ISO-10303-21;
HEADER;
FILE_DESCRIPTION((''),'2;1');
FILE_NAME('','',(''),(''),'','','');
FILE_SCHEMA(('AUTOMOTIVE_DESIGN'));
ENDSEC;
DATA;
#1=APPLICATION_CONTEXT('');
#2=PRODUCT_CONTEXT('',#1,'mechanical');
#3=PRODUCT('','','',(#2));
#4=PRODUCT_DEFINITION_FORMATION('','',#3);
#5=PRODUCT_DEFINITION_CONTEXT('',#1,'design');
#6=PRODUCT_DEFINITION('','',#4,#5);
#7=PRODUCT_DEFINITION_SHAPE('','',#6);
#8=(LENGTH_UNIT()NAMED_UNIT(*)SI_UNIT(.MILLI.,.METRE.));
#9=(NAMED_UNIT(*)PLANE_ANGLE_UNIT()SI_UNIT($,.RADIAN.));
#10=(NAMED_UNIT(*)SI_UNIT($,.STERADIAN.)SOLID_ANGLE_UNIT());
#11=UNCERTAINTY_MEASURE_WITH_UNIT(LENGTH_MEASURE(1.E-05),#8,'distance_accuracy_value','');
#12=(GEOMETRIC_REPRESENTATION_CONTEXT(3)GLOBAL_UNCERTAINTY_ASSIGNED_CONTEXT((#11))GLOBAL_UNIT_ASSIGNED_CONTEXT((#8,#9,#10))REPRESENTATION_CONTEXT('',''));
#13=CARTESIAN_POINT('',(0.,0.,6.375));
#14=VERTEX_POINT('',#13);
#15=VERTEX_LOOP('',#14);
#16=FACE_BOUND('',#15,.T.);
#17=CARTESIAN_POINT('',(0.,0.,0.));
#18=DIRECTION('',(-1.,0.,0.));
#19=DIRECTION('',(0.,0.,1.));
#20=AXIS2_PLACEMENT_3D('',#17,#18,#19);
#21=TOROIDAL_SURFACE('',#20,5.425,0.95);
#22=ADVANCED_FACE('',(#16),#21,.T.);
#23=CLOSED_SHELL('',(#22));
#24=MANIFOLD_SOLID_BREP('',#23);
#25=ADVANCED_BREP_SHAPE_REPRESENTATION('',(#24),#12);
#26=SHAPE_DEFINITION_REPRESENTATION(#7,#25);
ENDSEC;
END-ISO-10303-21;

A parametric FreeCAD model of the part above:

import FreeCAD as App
import Part
import Sketcher
from FreeCAD import Vector
Q = App.Units.Quantity

doc = App.newDocument("Part")
body = doc.addObject("PartDesign::Body", "Body")

# Sketch on XY plane
sketch1 = doc.addObject("Sketcher::SketchObject", "Sketch")
body.addObject(sketch1)
sketch1.AttachmentSupport = (doc.XY_Plane, [""])
sketch1.MapMode = "FlatFace"
sketch1.addGeometry(Part.Circle(Vector(0, 5.4, 0), Vector(0, 0, 1), 0.9), False)
sketch1.addConstraint([
    Sketcher.Constraint("PointOnObject", 0, 3, -2),
    Sketcher.Constraint("Diameter", 0, Q("1.9 mm")),
    Sketcher.Constraint("DistanceY", -1, 1, 0, 3, Q("5.425 mm")),
])
revolution = doc.addObject("PartDesign::Revolution", "Revolution")
body.addObject(revolution)
revolution.Profile = sketch1
revolution.ReferenceAxis = (sketch1, ["H_Axis"])
revolution.Angle = 360

doc.recompute()
